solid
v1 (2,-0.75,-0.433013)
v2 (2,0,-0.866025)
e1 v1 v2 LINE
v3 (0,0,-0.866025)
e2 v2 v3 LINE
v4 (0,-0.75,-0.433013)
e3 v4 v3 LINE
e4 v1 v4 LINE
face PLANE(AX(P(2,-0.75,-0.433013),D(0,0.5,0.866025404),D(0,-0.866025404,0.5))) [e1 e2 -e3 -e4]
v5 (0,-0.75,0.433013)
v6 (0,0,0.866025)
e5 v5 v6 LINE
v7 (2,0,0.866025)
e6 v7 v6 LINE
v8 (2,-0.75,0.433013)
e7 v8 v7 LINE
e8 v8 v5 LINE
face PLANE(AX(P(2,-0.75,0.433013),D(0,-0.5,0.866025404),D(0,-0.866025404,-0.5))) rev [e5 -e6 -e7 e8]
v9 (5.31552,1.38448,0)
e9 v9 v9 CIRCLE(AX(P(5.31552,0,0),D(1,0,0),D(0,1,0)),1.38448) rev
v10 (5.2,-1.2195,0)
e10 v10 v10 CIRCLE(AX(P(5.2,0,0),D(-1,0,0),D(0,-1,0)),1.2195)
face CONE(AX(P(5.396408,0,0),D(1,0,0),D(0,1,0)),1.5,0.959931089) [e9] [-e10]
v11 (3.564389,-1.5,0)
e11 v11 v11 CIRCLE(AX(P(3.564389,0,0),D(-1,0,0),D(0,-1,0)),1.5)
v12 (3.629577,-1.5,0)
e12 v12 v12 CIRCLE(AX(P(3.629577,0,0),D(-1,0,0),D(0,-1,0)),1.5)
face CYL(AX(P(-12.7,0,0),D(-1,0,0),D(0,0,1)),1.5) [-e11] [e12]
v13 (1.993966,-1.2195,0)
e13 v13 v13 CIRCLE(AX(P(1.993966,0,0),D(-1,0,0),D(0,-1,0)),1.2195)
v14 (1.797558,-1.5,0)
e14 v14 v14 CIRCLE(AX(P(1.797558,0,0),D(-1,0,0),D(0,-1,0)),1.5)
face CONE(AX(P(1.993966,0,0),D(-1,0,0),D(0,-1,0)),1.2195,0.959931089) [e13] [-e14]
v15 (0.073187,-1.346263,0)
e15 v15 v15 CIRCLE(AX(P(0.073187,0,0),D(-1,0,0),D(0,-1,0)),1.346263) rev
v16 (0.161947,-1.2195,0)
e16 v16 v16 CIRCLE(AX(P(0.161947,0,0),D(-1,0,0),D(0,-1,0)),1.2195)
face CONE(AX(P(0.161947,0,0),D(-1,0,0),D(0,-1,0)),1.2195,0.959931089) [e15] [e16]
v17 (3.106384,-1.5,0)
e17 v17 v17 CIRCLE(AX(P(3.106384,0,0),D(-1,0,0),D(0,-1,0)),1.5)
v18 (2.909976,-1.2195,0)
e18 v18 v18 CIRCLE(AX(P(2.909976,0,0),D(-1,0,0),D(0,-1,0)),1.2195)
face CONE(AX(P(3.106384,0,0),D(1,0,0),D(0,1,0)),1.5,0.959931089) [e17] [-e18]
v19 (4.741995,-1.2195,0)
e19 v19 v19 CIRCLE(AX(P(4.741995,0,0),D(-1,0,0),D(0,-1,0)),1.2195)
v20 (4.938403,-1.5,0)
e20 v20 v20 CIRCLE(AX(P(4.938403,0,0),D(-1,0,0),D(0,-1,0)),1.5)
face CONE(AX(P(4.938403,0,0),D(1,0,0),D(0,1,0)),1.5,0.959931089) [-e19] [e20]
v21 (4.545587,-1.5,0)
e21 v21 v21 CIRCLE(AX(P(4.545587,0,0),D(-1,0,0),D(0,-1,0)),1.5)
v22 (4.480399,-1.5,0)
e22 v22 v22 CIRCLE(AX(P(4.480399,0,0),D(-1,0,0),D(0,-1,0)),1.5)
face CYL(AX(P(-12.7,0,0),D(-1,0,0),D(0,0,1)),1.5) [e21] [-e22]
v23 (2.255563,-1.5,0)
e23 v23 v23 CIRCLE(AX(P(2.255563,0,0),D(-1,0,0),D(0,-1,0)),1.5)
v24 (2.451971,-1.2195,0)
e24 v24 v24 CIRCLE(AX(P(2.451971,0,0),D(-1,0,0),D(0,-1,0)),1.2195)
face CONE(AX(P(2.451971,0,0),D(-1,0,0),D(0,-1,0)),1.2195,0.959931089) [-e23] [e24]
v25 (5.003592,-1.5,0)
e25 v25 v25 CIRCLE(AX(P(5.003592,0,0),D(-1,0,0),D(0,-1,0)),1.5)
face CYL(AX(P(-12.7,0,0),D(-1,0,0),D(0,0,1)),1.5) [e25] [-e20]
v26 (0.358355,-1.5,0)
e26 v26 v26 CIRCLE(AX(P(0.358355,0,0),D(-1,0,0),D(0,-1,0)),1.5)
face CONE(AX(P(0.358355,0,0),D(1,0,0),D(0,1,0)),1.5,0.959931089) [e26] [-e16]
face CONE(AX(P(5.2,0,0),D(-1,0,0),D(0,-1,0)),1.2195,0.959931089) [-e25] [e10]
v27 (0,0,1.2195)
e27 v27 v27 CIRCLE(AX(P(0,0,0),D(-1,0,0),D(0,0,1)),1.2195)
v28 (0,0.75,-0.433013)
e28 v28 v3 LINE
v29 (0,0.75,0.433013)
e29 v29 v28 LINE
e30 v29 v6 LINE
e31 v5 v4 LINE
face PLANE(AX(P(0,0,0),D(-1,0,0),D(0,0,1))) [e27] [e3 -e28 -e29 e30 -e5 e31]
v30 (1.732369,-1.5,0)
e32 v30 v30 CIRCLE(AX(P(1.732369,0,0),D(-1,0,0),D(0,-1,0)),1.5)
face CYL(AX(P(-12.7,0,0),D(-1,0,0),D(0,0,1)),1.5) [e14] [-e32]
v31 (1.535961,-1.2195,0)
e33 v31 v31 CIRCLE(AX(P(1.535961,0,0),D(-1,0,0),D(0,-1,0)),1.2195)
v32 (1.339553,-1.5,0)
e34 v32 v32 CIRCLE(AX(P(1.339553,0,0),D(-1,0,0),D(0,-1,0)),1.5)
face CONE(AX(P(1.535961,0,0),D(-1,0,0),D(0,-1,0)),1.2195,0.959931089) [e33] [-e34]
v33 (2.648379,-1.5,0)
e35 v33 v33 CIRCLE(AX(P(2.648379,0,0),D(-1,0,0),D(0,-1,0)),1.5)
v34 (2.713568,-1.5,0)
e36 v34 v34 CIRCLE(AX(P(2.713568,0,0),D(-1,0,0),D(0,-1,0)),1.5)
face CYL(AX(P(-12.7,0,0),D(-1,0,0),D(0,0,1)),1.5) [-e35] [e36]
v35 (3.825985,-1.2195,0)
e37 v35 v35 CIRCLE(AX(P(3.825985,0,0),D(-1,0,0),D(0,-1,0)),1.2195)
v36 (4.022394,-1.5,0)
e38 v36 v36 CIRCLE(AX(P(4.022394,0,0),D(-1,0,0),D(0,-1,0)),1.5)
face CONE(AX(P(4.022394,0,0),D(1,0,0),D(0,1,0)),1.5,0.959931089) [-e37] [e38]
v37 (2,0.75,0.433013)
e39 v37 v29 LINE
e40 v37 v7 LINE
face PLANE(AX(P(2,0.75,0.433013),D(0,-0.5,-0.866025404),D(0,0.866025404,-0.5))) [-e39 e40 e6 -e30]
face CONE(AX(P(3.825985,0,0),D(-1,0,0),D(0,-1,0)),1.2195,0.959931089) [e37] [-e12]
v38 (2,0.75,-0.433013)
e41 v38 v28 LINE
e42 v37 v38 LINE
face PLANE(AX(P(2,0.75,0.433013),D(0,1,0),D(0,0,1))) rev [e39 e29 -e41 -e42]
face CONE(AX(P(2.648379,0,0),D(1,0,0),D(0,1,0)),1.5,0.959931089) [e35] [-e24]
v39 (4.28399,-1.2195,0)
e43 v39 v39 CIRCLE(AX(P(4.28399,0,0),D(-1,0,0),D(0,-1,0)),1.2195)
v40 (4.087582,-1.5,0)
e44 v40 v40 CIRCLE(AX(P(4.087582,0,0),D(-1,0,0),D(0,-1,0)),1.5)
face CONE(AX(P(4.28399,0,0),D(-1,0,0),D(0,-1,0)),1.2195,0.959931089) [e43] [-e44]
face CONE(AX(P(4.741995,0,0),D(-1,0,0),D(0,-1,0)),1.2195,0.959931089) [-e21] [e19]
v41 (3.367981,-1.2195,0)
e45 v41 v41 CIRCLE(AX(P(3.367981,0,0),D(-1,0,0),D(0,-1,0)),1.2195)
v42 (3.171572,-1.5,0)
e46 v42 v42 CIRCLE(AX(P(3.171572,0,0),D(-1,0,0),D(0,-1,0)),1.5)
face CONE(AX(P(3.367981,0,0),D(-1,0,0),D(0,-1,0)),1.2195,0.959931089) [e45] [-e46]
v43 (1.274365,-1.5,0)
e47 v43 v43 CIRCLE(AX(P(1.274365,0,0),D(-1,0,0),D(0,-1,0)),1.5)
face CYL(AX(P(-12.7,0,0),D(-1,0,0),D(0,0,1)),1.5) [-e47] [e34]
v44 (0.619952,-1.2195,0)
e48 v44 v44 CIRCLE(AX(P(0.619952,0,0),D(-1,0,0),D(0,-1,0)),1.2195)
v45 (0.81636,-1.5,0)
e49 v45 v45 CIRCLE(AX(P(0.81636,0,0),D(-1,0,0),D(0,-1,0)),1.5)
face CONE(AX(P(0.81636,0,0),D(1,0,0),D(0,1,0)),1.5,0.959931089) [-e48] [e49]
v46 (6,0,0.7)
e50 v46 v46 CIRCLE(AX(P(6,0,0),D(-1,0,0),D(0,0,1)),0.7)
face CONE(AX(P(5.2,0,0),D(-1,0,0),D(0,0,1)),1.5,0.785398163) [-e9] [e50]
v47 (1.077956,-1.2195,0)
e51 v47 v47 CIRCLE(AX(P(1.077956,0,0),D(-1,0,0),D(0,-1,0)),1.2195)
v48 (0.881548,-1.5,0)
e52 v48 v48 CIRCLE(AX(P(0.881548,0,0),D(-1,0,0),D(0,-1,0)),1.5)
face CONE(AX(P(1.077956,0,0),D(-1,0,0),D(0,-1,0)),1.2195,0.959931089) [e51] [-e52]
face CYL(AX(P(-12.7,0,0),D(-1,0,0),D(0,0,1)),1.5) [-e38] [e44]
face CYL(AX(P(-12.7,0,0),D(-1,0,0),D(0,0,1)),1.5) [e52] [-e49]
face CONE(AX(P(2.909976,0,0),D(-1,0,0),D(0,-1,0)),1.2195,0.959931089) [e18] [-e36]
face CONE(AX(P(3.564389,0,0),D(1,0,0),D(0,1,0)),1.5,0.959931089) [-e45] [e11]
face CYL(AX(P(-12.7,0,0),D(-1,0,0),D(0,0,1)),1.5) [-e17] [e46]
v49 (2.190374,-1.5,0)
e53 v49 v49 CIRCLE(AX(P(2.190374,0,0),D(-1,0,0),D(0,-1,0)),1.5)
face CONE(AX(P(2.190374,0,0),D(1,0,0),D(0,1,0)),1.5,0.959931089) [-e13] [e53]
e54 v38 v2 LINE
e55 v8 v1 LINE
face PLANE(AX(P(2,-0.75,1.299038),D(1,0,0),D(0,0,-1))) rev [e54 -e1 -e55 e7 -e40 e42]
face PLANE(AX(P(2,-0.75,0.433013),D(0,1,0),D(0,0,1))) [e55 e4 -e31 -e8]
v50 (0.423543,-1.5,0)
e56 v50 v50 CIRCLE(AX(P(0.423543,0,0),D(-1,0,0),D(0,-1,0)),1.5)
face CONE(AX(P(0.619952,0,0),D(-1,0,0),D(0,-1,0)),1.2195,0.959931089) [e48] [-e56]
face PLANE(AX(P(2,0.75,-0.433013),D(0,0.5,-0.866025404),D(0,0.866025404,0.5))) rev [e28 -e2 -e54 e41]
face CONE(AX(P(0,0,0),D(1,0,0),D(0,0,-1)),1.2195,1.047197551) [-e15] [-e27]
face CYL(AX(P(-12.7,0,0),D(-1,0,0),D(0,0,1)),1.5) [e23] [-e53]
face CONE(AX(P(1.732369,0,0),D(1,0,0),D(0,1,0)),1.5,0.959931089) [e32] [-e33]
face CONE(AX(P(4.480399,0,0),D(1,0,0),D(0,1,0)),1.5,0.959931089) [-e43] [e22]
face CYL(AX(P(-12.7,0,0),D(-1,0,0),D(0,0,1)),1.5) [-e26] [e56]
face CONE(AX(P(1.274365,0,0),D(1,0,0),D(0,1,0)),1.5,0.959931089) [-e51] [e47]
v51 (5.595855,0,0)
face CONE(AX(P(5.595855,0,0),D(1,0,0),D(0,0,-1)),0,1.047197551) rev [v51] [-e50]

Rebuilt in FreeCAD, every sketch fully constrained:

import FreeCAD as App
import Part
import Sketcher
from FreeCAD import Vector
Q = App.Units.Quantity


def add_polygon(sketch, points):
    """Adds a closed chain of lines whose ends are joined by coincident constraints."""
    first, n = sketch.GeometryCount, len(points)
    for a, b in zip(points, points[1:] + points[:1]):
        sketch.addGeometry(Part.LineSegment(App.Vector(*a, 0), App.Vector(*b, 0)), False)
    for i in range(n):
        sketch.addConstraint(Sketcher.Constraint("Coincident", first + i, 2, first + (i + 1) % n, 1))

doc = App.newDocument("Part")
body = doc.addObject("PartDesign::Body", "Body")

# Sketch on XY plane
sketch1 = body.newObject("Sketcher::SketchObject", "Sketch")
sketch1.AttachmentSupport = (doc.getObject("XY_Plane"), [""])
sketch1.MapMode = "FlatFace"
add_polygon(sketch1, [(0, 1.22), (0, 0), (5.6, 0), (6, 0.7), (5.2, 1.5), (0.16, 1.5)])  # lines 0-5
sketch1.addConstraint(Sketcher.Constraint("Vertical", 0))
sketch1.addConstraint(Sketcher.Constraint("Horizontal", 1))
sketch1.addConstraint(Sketcher.Constraint("Horizontal", 4))
sketch1.addConstraint(Sketcher.Constraint("Coincident", 0, 2, -1, 1))
sketch1.addConstraint(Sketcher.Constraint("Parallel", 2, 5))
sketch1.addConstraint(Sketcher.Constraint("Angle", 2, Q("60 deg")))
sketch1.addConstraint(Sketcher.Constraint("Angle", 3, Q("135 deg")))
sketch1.addConstraint(Sketcher.Constraint("DistanceX", -1, 1, 2, 2, Q("6 mm")))
sketch1.addConstraint(Sketcher.Constraint("DistanceY", -1, 1, 2, 2, Q("0.7 mm")))
sketch1.addConstraint(Sketcher.Constraint("DistanceX", -1, 1, 3, 2, Q("5.2 mm")))
sketch1.addConstraint(Sketcher.Constraint("DistanceY", 0, 2, 0, 1, Q("1.2195 mm")))
revolution = body.newObject("PartDesign::Revolution", "Revolution")
revolution.Profile = sketch1
revolution.ReferenceAxis = (sketch1, ["H_Axis"])
revolution.Angle = 360

# Sketch on YZ plane
sketch2 = body.newObject("Sketcher::SketchObject", "Sketch001")
sketch2.AttachmentSupport = (doc.getObject("YZ_Plane"), [""])
sketch2.MapMode = "FlatFace"
add_polygon(sketch2, [(0.8, 0.4), (0.8, -0.4), (0, -0.9), (-0.8, -0.4), (-0.8, 0.4), (0, 0.9)])  # lines 0-5
sketch2.addConstraint(Sketcher.Constraint("Vertical", 0))
sketch2.addConstraint(Sketcher.Constraint("Vertical", 3))
sketch2.addConstraint(Sketcher.Constraint("Symmetric", 0, 2, 3, 2, -1, 1))
sketch2.addConstraint(Sketcher.Constraint("Symmetric", 1, 2, 4, 2, -1, 1))
sketch2.addConstraint(Sketcher.Constraint("PointOnObject", 1, 2, -2))
sketch2.addConstraint(Sketcher.Constraint("Parallel", 2, 5))
sketch2.addConstraint(Sketcher.Constraint("Horizontal", 0, 2, 2, 2))
sketch2.addConstraint(Sketcher.Constraint("Angle", 1, Q("-150 deg")))
sketch2.addConstraint(Sketcher.Constraint("DistanceX", 2, 2, 0, 2, Q("1.5 mm")))
sketch2.addConstraint(Sketcher.Constraint("DistanceY", 0, 2, 0, 1, Q("0.866025 mm")))
pocket1 = body.newObject("PartDesign::Pocket", "Pocket")
pocket1.Profile = sketch2
pocket1.Length = 2
pocket1.Reversed = True

# Sketch on XY plane
sketch3 = body.newObject("Sketcher::SketchObject", "Sketch002")
sketch3.AttachmentSupport = (doc.getObject("XY_Plane"), [""])
sketch3.MapMode = "FlatFace"
add_polygon(sketch3, [(0.16, -1.22), (-0.03, -1.5), (-0.03, -1.88), (0.36, -1.88), (0.36, -1.5)])  # lines 0-4
sketch3.addConstraint(Sketcher.Constraint("Vertical", 1))
sketch3.addConstraint(Sketcher.Constraint("Horizontal", 2))
sketch3.addConstraint(Sketcher.Constraint("Vertical", 3))
sketch3.addConstraint(Sketcher.Constraint("Horizontal", 0, 2, 3, 2))
sketch3.addConstraint(Sketcher.Constraint("Equal", 0, 4))
sketch3.addConstraint(Sketcher.Constraint("Angle", 0, Q("-125 deg")))
sketch3.addConstraint(Sketcher.Constraint("DistanceY", 0, 2, -1, 1, Q("1.5 mm")))
sketch3.addConstraint(Sketcher.Constraint("DistanceY", 1, 2, 1, 1, Q("0.375 mm")))
sketch3.addConstraint(Sketcher.Constraint("DistanceY", 4, 2, -1, 1, Q("1.2195 mm")))
sketch3.addConstraint(Sketcher.Constraint("DistanceX", 0, 2, -1, 1, Q("0.034461 mm")))
groove = body.newObject("PartDesign::Groove", "Groove")
groove.Profile = sketch3
groove.ReferenceAxis = (sketch3, ["H_Axis"])
groove.Angle = 360
doc.recompute()

linearpattern = body.newObject("PartDesign::LinearPattern", "LinearPattern")
linearpattern.Originals = [groove]
linearpattern.Direction = (doc.getObject("X_Axis"), [""])
linearpattern.Mode = "offset"
linearpattern.Offset = 0.458005
linearpattern.Occurrences = 12
body.Tip = linearpattern

doc.recompute()
